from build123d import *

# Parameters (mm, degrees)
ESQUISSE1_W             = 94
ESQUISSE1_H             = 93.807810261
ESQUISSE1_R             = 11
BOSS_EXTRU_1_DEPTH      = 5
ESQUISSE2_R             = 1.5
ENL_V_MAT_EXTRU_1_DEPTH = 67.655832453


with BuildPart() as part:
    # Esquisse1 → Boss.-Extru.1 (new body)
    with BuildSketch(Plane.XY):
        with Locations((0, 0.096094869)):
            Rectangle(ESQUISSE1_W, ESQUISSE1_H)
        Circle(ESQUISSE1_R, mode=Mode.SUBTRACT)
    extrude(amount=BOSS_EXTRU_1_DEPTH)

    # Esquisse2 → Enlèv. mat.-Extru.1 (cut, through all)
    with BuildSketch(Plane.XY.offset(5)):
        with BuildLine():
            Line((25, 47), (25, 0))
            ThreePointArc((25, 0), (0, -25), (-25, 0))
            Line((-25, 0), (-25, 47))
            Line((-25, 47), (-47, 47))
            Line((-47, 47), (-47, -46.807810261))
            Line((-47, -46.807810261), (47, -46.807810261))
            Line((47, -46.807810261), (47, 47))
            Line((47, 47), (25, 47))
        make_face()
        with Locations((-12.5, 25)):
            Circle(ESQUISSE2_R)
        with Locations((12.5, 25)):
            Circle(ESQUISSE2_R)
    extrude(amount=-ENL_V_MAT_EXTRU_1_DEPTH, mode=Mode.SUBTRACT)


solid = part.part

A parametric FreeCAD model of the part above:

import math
import FreeCAD as App
import Part
import Sketcher


def add_polygon(sketch, points):
    """Adds a closed chain of lines whose ends are joined by coincident constraints."""
    first, n = sketch.GeometryCount, len(points)
    for a, b in zip(points, points[1:] + points[:1]):
        sketch.addGeometry(Part.LineSegment(App.Vector(*a, 0), App.Vector(*b, 0)), False)
    for i in range(n):
        sketch.addConstraint(Sketcher.Constraint("Coincident", first + i, 2, first + (i + 1) % n, 1))

doc = App.newDocument("Part")
body = doc.addObject("PartDesign::Body", "Body")

sketch1 = doc.addObject("Sketcher::SketchObject", "Sketch")
body.addObject(sketch1)
sketch1.AttachmentSupport = (doc.XY_Plane, [""])
sketch1.MapMode = "FlatFace"
add_polygon(sketch1, [(-47, 47), (-47, -47), (47, -47), (47, 47)])
sketch1.addGeometry(Part.Circle(App.Vector(0, 0, 0), App.Vector(0, 0, 1), 11), False)
sketch1.addConstraint([
    Sketcher.Constraint("Vertical", 0),
    Sketcher.Constraint("Horizontal", 1),
    Sketcher.Constraint("Vertical", 2),
    Sketcher.Constraint("Horizontal", 3),
    Sketcher.Constraint("Coincident", 4, 3, -1, 1),
    Sketcher.Constraint("Diameter", 4, 22.0),
    Sketcher.Constraint("DistanceX", 1, 1, 1, 2, 94.0),
    Sketcher.Constraint("DistanceX", 0, 2, -1, 1, 47.0),
    Sketcher.Constraint("DistanceY", -1, 1, 2, 2, 47.0),
    Sketcher.Constraint("DistanceY", 0, 2, 0, 1, 93.80781),
])
pad1 = doc.addObject("PartDesign::Pad", "Pad")
body.addObject(pad1)
pad1.Profile = sketch1
pad1.Length = 5

sketch2 = doc.addObject("Sketcher::SketchObject", "Sketch001")
body.addObject(sketch2)
sketch2.AttachmentSupport = (doc.XY_Plane, [""])
sketch2.MapMode = "FlatFace"
sketch2.AttachmentOffset = App.Placement(App.Vector(0, 0, 5), App.Rotation())
sketch2.addGeometry([
    Part.LineSegment(App.Vector(25, 47, 0), App.Vector(25, 0, 0)),
    Part.ArcOfCircle(Part.Circle(App.Vector(0, 0, 0), App.Vector(0, 0, 1), 25), math.radians(180), math.radians(360)),
    Part.LineSegment(App.Vector(-25, 0, 0), App.Vector(-25, 47, 0)),
    Part.LineSegment(App.Vector(-25, 47, 0), App.Vector(-47, 47, 0)),
    Part.LineSegment(App.Vector(-47, 47, 0), App.Vector(-47, -46.8, 0)),
    Part.LineSegment(App.Vector(-47, -46.8, 0), App.Vector(47, -46.8, 0)),
    Part.LineSegment(App.Vector(47, -46.8, 0), App.Vector(47, 47, 0)),
    Part.LineSegment(App.Vector(47, 47, 0), App.Vector(25, 47, 0)),
    Part.Circle(App.Vector(-12.5, 25, 0), App.Vector(0, 0, 1), 1.5),
    Part.Circle(App.Vector(12.5, 25, 0), App.Vector(0, 0, 1), 1.5),
], False)
sketch2.addConstraint([
    Sketcher.Constraint("Tangent", 0, 2, 1, 2),
    Sketcher.Constraint("Tangent", 1, 1, 2, 1),
    Sketcher.Constraint("Coincident", 2, 2, 3, 1),
    Sketcher.Constraint("Coincident", 3, 2, 4, 1),
    Sketcher.Constraint("Coincident", 4, 2, 5, 1),
    Sketcher.Constraint("Coincident", 5, 2, 6, 1),
    Sketcher.Constraint("Coincident", 6, 2, 7, 1),
    Sketcher.Constraint("Coincident", 7, 2, 0, 1),
    Sketcher.Constraint("Vertical", 0),
    Sketcher.Constraint("Vertical", 2),
    Sketcher.Constraint("Horizontal", 3),
    Sketcher.Constraint("Vertical", 4),
    Sketcher.Constraint("Horizontal", 5),
    Sketcher.Constraint("Vertical", 6),
    Sketcher.Constraint("Horizontal", 7),
    Sketcher.Constraint("Coincident", 1, 3, -1, 1),
    Sketcher.Constraint("Equal", 8, 9),
    Sketcher.Constraint("Symmetric", 8, 3, 9, 3, -2),
    Sketcher.Constraint("Symmetric", 3, 2, 6, 2, -2),
    Sketcher.Constraint("Diameter", 8, 3.0),
    Sketcher.Constraint("Radius", 1, 25.0),
    Sketcher.Constraint("DistanceX", 3, 2, 3, 1, 22.0),
    Sketcher.Constraint("DistanceY", 0, 2, 0, 1, 47.0),
    Sketcher.Constraint("DistanceY", -1, 1, 8, 3, 25.0),
    Sketcher.Constraint("DistanceX", 8, 3, 9, 3, 25.0),
    Sketcher.Constraint("DistanceY", 4, 2, 4, 1, 93.80781),
])
pocket1 = doc.addObject("PartDesign::Pocket", "Pocket")
body.addObject(pocket1)
pocket1.Profile = sketch2
pocket1.Type = "ThroughAll"

doc.recompute()
